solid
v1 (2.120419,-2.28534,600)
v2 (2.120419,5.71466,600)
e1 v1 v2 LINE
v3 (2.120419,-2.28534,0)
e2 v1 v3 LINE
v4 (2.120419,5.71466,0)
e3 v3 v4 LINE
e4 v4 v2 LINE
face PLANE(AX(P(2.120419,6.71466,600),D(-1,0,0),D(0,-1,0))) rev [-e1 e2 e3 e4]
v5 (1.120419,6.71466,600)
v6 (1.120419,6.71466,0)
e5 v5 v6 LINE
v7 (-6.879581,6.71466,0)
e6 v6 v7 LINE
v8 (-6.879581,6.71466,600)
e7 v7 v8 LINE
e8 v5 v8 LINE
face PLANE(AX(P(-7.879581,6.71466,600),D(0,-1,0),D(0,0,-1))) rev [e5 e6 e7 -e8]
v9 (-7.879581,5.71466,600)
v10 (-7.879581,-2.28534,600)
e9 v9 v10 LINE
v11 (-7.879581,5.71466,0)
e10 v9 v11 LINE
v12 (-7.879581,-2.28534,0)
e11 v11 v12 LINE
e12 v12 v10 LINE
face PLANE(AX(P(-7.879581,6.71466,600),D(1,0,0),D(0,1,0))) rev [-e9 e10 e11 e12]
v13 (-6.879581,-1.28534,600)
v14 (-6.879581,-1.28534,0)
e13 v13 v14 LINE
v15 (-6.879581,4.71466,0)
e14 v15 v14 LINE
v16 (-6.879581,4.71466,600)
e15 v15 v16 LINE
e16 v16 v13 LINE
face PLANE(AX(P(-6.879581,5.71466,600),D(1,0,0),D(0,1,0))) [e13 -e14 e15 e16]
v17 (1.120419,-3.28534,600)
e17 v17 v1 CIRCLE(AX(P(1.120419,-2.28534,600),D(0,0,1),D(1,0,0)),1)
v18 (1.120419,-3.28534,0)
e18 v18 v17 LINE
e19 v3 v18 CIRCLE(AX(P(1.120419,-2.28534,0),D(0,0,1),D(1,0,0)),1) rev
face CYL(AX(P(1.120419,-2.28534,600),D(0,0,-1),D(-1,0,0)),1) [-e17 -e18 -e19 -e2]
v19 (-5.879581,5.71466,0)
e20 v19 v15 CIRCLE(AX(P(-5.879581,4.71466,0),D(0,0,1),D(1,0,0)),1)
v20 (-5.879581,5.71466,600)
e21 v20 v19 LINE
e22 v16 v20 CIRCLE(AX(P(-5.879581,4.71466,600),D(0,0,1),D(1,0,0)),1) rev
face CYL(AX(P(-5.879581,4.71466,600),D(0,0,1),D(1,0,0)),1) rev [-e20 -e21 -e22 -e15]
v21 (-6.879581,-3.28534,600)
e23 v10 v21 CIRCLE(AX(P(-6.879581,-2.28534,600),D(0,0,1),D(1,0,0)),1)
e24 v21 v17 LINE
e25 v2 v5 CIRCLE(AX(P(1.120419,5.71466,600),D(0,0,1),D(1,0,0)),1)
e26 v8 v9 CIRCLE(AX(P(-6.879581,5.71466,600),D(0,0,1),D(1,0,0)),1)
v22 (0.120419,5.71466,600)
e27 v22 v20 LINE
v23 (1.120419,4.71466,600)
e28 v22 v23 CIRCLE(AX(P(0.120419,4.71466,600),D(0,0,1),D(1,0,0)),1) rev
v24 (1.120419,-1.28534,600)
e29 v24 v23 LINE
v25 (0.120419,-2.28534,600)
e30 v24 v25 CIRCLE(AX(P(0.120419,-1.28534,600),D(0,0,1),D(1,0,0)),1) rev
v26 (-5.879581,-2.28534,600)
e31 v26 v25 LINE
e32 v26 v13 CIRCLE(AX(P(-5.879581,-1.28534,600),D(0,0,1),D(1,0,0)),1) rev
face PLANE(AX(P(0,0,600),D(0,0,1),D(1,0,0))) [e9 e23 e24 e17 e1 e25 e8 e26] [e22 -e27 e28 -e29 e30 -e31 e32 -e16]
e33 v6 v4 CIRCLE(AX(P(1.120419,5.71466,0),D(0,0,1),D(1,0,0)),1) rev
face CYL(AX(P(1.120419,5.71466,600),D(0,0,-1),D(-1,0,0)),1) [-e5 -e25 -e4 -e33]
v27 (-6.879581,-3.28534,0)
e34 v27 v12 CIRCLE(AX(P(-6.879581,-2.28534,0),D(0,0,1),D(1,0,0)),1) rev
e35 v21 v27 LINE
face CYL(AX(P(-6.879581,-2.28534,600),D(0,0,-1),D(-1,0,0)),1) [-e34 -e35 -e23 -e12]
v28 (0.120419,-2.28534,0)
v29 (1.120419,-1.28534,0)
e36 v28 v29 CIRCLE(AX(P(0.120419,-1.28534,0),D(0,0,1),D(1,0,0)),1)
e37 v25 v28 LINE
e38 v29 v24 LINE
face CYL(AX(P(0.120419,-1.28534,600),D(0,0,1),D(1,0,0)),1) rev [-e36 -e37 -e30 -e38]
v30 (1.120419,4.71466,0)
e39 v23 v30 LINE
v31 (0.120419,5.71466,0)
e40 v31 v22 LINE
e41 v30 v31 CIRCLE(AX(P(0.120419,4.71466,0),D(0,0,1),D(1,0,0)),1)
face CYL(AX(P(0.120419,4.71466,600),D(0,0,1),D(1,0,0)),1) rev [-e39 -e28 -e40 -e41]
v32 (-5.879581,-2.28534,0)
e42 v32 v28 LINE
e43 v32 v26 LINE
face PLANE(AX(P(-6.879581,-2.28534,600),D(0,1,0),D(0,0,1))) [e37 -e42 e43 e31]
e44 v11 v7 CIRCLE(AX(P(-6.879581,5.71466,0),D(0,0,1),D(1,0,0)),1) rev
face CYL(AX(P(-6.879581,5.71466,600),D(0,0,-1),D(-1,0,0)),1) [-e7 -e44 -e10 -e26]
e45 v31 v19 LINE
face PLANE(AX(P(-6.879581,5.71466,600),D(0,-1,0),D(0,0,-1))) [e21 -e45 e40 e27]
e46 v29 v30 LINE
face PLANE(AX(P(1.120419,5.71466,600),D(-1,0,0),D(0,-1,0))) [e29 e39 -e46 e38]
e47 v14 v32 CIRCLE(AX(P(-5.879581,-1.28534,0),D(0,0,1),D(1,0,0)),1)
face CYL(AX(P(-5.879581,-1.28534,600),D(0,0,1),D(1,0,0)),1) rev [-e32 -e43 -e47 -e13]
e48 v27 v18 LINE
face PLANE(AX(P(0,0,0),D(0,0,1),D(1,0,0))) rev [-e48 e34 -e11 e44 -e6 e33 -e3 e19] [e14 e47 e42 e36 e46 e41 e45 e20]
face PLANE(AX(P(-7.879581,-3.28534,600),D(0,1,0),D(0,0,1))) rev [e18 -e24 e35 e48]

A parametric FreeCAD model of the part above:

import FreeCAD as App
import Part
import Sketcher
from FreeCAD import Vector


def edges_at(feature, points):
    """Names of the edges that pass closest to the given points."""
    edges = feature.Shape.Edges
    near = lambda p: min(range(len(edges)), key=lambda i: edges[i].distToShape(Part.Vertex(*p))[0])
    return sorted({f"Edge{near(p) + 1}" for p in points})


def add_polygon(sketch, points):
    """Adds a closed chain of lines whose ends are joined by coincident constraints."""
    first, n = sketch.GeometryCount, len(points)
    for a, b in zip(points, points[1:] + points[:1]):
        sketch.addGeometry(Part.LineSegment(App.Vector(*a, 0), App.Vector(*b, 0)), False)
    for i in range(n):
        sketch.addConstraint(Sketcher.Constraint("Coincident", first + i, 2, first + (i + 1) % n, 1))

doc = App.newDocument("Part")
params = doc.addObject("Spreadsheet::Sheet", "Params")
for row, (alias, value) in enumerate([
    ("sketch1_width", "10 mm"),
    ("sketch1_width2", "8 mm"),
    ("pad1_length", "600 mm"),
    ("fillet_radius", "1 mm"),
    ("fillet2_radius", "1 mm"),
], start=1):
    params.set(f"A{row}", alias)
    params.set(f"B{row}", "=" + value)
    params.setAlias(f"B{row}", alias)

body = doc.addObject("PartDesign::Body", "Body")

sketch1 = body.newObject("Sketcher::SketchObject", "Sketch")
sketch1.AttachmentSupport = (doc.getObject("XY_Plane"), [""])
sketch1.MapMode = "FlatFace"
add_polygon(sketch1, [(-8, 7), (-8, -3), (2, -3), (2, 7)])
add_polygon(sketch1, [(1, -2), (-7, -2), (-7, 6), (1, 6)])
sketch1.addConstraint(Sketcher.Constraint("Vertical", 0))
sketch1.addConstraint(Sketcher.Constraint("Horizontal", 1))
sketch1.addConstraint(Sketcher.Constraint("Vertical", 2))
sketch1.addConstraint(Sketcher.Constraint("Horizontal", 3))
sketch1.addConstraint(Sketcher.Constraint("Horizontal", 4))
sketch1.addConstraint(Sketcher.Constraint("Vertical", 5))
sketch1.addConstraint(Sketcher.Constraint("Horizontal", 6))
sketch1.addConstraint(Sketcher.Constraint("Vertical", 7))
sketch1.addConstraint(Sketcher.Constraint("Equal", 3, 0))
sketch1.addConstraint(Sketcher.Constraint("Equal", 6, 5))
sketch1.addConstraint(Sketcher.Constraint("DistanceX", 1, 1, 1, 2, 10.0))
sketch1.addConstraint(Sketcher.Constraint("DistanceX", 4, 2, 4, 1, 8.0))
sketch1.addConstraint(Sketcher.Constraint("DistanceX", 0, 2, 4, 2, 1.0))
sketch1.addConstraint(Sketcher.Constraint("DistanceY", 0, 2, 4, 2, 1.0))
sketch1.addConstraint(Sketcher.Constraint("DistanceX", 0, 2, -1, 1, 7.879581))
sketch1.addConstraint(Sketcher.Constraint("DistanceY", 0, 2, -1, 1, 3.28534))
sketch1.setExpression("Constraints[18]", "Params.sketch1_width")
sketch1.setExpression("Constraints[19]", "Params.sketch1_width2")
pad1 = body.newObject("PartDesign::Pad", "Pad")
pad1.Profile = sketch1
pad1.setExpression("Length", "Params.pad1_length")
doc.recompute()

fillet = body.newObject("PartDesign::Fillet", "Fillet")
fillet.Base = (pad1, edges_at(pad1, [
    (-6.88, -2.285, 300),
    (2.12, -3.285, 300),
    (-7.88, 6.715, 300),
    (2.12, 6.715, 300),
]))
fillet.setExpression("Radius", "Params.fillet_radius")
doc.recompute()

fillet2 = body.newObject("PartDesign::Fillet", "Fillet001")
fillet2.Base = (fillet, edges_at(fillet, [
    (1.12, -2.285, 300),
    (1.12, 5.715, 300),
    (-6.88, 5.715, 300),
    (-7.88, -3.285, 300),
]))
fillet2.setExpression("Radius", "Params.fillet2_radius")

doc.recompute()
